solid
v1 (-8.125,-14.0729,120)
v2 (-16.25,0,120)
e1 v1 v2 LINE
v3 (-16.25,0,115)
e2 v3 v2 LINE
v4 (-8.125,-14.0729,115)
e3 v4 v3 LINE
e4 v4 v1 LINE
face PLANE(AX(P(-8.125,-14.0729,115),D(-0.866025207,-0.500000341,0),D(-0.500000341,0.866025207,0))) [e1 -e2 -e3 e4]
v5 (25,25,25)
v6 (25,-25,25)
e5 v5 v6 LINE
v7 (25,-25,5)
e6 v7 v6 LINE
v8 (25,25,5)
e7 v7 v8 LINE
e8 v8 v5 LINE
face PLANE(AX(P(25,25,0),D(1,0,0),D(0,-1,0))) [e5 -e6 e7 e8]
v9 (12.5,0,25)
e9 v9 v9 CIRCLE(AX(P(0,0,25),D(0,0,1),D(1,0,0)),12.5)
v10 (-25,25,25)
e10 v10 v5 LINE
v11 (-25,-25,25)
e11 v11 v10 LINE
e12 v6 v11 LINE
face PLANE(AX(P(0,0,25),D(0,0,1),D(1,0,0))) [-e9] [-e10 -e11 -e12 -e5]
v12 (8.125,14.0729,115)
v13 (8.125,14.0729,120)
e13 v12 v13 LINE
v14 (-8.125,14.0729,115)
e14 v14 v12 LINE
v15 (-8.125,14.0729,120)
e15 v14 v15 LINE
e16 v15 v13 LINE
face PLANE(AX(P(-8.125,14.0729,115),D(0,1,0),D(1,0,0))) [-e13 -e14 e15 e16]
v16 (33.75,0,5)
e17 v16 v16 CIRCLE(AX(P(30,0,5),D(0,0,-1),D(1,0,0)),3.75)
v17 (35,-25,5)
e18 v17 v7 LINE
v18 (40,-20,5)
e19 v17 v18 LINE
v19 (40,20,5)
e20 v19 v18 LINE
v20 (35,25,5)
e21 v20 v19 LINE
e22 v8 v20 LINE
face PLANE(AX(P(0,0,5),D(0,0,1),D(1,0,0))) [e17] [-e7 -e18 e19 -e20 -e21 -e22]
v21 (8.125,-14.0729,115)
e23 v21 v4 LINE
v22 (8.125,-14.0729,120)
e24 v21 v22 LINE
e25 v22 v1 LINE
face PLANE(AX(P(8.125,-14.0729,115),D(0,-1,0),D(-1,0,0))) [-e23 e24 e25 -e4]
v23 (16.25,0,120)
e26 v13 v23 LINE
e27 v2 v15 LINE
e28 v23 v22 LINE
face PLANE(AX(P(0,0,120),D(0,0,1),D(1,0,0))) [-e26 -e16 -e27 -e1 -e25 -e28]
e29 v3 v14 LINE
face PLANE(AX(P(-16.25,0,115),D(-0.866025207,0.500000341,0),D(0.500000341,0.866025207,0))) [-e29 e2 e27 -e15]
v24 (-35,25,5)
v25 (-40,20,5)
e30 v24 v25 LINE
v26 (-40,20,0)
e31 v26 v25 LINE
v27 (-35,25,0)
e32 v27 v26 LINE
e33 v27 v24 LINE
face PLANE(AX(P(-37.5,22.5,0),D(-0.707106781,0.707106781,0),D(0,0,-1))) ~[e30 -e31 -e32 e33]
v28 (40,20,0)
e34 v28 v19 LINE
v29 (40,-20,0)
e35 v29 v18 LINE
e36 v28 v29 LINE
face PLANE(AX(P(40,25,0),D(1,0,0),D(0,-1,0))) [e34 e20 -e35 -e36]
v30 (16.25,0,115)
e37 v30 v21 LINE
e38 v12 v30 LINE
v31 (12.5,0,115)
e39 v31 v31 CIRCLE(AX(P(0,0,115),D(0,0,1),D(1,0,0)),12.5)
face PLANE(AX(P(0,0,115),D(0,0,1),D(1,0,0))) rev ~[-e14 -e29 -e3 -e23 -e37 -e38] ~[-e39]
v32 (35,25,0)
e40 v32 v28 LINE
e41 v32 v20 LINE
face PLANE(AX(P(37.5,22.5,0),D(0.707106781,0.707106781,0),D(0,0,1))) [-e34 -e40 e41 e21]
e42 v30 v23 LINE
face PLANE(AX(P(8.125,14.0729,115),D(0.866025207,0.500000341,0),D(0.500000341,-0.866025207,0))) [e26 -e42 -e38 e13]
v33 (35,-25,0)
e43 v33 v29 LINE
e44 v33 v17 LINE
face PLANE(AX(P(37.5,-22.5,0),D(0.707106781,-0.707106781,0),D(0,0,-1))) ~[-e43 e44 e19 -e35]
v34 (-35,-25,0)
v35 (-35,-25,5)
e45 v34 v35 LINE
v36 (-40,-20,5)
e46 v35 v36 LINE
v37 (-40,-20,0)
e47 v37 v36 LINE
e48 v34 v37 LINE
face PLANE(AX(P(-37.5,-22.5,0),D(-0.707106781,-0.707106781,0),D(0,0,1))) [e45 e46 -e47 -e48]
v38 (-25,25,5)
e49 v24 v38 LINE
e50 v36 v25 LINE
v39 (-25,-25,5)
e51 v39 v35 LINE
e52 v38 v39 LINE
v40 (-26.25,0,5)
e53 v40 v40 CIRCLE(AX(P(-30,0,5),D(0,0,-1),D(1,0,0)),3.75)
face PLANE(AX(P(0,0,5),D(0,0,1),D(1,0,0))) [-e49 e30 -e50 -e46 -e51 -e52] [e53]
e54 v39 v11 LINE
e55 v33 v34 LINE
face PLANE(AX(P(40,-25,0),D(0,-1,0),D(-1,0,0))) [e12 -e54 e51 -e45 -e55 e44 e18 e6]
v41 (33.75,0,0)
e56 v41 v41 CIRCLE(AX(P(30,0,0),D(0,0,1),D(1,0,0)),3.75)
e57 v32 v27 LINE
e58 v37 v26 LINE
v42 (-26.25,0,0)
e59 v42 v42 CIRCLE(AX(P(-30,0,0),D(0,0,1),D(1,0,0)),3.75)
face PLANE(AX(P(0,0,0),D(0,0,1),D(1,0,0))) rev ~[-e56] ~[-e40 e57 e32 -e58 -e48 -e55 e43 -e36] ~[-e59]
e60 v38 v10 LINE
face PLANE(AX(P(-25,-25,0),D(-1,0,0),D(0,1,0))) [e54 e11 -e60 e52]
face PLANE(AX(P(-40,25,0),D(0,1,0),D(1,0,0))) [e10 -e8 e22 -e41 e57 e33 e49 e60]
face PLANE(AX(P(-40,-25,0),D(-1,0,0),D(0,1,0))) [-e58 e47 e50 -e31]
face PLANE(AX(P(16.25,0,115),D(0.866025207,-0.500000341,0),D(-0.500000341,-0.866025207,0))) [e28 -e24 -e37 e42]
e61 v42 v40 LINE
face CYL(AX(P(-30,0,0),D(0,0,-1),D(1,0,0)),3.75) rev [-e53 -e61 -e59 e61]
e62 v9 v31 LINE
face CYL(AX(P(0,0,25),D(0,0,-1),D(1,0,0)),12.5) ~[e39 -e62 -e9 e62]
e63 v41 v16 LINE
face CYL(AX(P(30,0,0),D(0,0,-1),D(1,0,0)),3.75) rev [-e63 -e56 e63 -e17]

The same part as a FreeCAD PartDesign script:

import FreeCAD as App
import Part
import Sketcher

V = App.Vector
Q = App.Units.Quantity


def edges_at(feature, points):
    """Names of the edges that pass closest to the given points."""
    edges = feature.Shape.Edges
    near = lambda p: min(range(len(edges)), key=lambda i: edges[i].distToShape(Part.Vertex(*p))[0])
    return sorted({f"Edge{near(p) + 1}" for p in points})


def add_polygon(sketch, points):
    """Adds a closed chain of lines whose ends are joined by coincident constraints."""
    first, n = sketch.GeometryCount, len(points)
    for a, b in zip(points, points[1:] + points[:1]):
        sketch.addGeometry(Part.LineSegment(App.Vector(*a, 0), App.Vector(*b, 0)), False)
    for i in range(n):
        sketch.addConstraint(Sketcher.Constraint("Coincident", first + i, 2, first + (i + 1) % n, 1))

doc = App.newDocument("Part")
body = doc.addObject("PartDesign::Body", "Body")

# Sketch on XY plane
sketch1 = body.newObject("Sketcher::SketchObject", "Sketch")
sketch1.AttachmentSupport = (doc.getObject("XY_Plane"), [""])
sketch1.MapMode = "FlatFace"
add_polygon(sketch1, [(40, 25), (-40, 25), (-40, -25), (40, -25)])  # lines 0-3
sketch1.addConstraint([
    Sketcher.Constraint("Horizontal", 0),
    Sketcher.Constraint("Vertical", 1),
    Sketcher.Constraint("Horizontal", 2),
    Sketcher.Constraint("Vertical", 3),
    Sketcher.Constraint("Symmetric", 0, 2, 2, 2, -1, 1),
    Sketcher.Constraint("DistanceX", 0, 2, 0, 1, 80.0),
    Sketcher.Constraint("DistanceY", 1, 2, 1, 1, 50.0),
])
pad1 = body.newObject("PartDesign::Pad", "Pad")
pad1.Profile = sketch1
pad1.Length = 5

# Sketch on XY plane
sketch2 = body.newObject("Sketcher::SketchObject", "Sketch001")
sketch2.AttachmentSupport = (doc.getObject("XY_Plane"), [""])
sketch2.MapMode = "FlatFace"
sketch2.addGeometry([
    Part.Circle(V(-30, 0, 0), V(0, 0, 1), 3.8),
    Part.Circle(V(30, 0, 0), V(0, 0, 1), 3.8),
], False)
sketch2.addConstraint([
    Sketcher.Constraint("Equal", 0, 1),
    Sketcher.Constraint("Symmetric", 0, 3, 1, 3, -1, 1),
    Sketcher.Constraint("PointOnObject", 0, 3, -1),
    Sketcher.Constraint("Diameter", 0, 7.5),
    Sketcher.Constraint("DistanceX", 0, 3, -1, 1, 30.0),
])
pocket1 = body.newObject("PartDesign::Pocket", "Pocket")
pocket1.Profile = sketch2
pocket1.Type = "ThroughAll"
pocket1.Reversed = True

# Sketch on XY plane
sketch3 = body.newObject("Sketcher::SketchObject", "Sketch002")
sketch3.AttachmentSupport = (doc.getObject("XY_Plane"), [""])
sketch3.MapMode = "FlatFace"
add_polygon(sketch3, [(25, 25), (-25, 25), (-25, -25), (25, -25)])  # lines 0-3
sketch3.addConstraint([
    Sketcher.Constraint("Horizontal", 0),
    Sketcher.Constraint("Vertical", 1),
    Sketcher.Constraint("Horizontal", 2),
    Sketcher.Constraint("Vertical", 3),
    Sketcher.Constraint("Symmetric", 0, 2, 2, 2, -1, 1),
    Sketcher.Constraint("Equal", 2, 1),
    Sketcher.Constraint("DistanceX", 0, 2, 0, 1, 50.0),
])
pad2 = body.newObject("PartDesign::Pad", "Pad001")
pad2.Profile = sketch3
pad2.Length = 25

# Sketch on XY plane
sketch4 = body.newObject("Sketcher::SketchObject", "Sketch003")
sketch4.AttachmentSupport = (doc.getObject("XY_Plane"), [""])
sketch4.MapMode = "FlatFace"
sketch4.AttachmentOffset = App.Placement(V(0, 0, 25), App.Rotation())
sketch4.addGeometry(Part.Circle(V(0, 0, 0), V(0, 0, 1), 12), False)
sketch4.addConstraint([
    Sketcher.Constraint("Coincident", 0, 3, -1, 1),
    Sketcher.Constraint("Diameter", 0, 25.0),
])
pad3 = body.newObject("PartDesign::Pad", "Pad002")
pad3.Profile = sketch4
pad3.Length = 90

# Sketch on XY plane
sketch5 = body.newObject("Sketcher::SketchObject", "Sketch004")
sketch5.AttachmentSupport = (doc.getObject("XY_Plane"), [""])
sketch5.MapMode = "FlatFace"
sketch5.AttachmentOffset = App.Placement(V(0, 0, 115), App.Rotation())
add_polygon(sketch5, [(8, -14), (16, 0), (8, 14), (-8, 14), (-16, 0), (-8, -14)])  # lines 0-5
sketch5.addConstraint([
    Sketcher.Constraint("Horizontal", 2),
    Sketcher.Constraint("Horizontal", 5),
    Sketcher.Constraint("Symmetric", 0, 2, 3, 2, -1, 1),
    Sketcher.Constraint("Symmetric", 1, 2, 4, 2, -1, 1),
    Sketcher.Constraint("PointOnObject", 0, 2, -1),
    Sketcher.Constraint("Parallel", 0, 3),
    Sketcher.Constraint("Vertical", 2, 2, 4, 2),
    Sketcher.Constraint("DistanceX", 3, 2, 0, 2, 32.5),
    Sketcher.Constraint("Angle", 0, Q("60 deg")),
    Sketcher.Constraint("DistanceX", 2, 2, 2, 1, 16.25),
])
pad4 = body.newObject("PartDesign::Pad", "Pad003")
pad4.Profile = sketch5
pad4.Length = 5
doc.recompute()

chamfer = body.newObject("PartDesign::Chamfer", "Chamfer")
chamfer.Base = (pad4, edges_at(pad4, [
    (40, -25, 2.5),
    (40, 25, 2.5),
    (-40, -25, 2.5),
    (-40, 25, 2.5),
]))
chamfer.Size = 5

doc.recompute()
